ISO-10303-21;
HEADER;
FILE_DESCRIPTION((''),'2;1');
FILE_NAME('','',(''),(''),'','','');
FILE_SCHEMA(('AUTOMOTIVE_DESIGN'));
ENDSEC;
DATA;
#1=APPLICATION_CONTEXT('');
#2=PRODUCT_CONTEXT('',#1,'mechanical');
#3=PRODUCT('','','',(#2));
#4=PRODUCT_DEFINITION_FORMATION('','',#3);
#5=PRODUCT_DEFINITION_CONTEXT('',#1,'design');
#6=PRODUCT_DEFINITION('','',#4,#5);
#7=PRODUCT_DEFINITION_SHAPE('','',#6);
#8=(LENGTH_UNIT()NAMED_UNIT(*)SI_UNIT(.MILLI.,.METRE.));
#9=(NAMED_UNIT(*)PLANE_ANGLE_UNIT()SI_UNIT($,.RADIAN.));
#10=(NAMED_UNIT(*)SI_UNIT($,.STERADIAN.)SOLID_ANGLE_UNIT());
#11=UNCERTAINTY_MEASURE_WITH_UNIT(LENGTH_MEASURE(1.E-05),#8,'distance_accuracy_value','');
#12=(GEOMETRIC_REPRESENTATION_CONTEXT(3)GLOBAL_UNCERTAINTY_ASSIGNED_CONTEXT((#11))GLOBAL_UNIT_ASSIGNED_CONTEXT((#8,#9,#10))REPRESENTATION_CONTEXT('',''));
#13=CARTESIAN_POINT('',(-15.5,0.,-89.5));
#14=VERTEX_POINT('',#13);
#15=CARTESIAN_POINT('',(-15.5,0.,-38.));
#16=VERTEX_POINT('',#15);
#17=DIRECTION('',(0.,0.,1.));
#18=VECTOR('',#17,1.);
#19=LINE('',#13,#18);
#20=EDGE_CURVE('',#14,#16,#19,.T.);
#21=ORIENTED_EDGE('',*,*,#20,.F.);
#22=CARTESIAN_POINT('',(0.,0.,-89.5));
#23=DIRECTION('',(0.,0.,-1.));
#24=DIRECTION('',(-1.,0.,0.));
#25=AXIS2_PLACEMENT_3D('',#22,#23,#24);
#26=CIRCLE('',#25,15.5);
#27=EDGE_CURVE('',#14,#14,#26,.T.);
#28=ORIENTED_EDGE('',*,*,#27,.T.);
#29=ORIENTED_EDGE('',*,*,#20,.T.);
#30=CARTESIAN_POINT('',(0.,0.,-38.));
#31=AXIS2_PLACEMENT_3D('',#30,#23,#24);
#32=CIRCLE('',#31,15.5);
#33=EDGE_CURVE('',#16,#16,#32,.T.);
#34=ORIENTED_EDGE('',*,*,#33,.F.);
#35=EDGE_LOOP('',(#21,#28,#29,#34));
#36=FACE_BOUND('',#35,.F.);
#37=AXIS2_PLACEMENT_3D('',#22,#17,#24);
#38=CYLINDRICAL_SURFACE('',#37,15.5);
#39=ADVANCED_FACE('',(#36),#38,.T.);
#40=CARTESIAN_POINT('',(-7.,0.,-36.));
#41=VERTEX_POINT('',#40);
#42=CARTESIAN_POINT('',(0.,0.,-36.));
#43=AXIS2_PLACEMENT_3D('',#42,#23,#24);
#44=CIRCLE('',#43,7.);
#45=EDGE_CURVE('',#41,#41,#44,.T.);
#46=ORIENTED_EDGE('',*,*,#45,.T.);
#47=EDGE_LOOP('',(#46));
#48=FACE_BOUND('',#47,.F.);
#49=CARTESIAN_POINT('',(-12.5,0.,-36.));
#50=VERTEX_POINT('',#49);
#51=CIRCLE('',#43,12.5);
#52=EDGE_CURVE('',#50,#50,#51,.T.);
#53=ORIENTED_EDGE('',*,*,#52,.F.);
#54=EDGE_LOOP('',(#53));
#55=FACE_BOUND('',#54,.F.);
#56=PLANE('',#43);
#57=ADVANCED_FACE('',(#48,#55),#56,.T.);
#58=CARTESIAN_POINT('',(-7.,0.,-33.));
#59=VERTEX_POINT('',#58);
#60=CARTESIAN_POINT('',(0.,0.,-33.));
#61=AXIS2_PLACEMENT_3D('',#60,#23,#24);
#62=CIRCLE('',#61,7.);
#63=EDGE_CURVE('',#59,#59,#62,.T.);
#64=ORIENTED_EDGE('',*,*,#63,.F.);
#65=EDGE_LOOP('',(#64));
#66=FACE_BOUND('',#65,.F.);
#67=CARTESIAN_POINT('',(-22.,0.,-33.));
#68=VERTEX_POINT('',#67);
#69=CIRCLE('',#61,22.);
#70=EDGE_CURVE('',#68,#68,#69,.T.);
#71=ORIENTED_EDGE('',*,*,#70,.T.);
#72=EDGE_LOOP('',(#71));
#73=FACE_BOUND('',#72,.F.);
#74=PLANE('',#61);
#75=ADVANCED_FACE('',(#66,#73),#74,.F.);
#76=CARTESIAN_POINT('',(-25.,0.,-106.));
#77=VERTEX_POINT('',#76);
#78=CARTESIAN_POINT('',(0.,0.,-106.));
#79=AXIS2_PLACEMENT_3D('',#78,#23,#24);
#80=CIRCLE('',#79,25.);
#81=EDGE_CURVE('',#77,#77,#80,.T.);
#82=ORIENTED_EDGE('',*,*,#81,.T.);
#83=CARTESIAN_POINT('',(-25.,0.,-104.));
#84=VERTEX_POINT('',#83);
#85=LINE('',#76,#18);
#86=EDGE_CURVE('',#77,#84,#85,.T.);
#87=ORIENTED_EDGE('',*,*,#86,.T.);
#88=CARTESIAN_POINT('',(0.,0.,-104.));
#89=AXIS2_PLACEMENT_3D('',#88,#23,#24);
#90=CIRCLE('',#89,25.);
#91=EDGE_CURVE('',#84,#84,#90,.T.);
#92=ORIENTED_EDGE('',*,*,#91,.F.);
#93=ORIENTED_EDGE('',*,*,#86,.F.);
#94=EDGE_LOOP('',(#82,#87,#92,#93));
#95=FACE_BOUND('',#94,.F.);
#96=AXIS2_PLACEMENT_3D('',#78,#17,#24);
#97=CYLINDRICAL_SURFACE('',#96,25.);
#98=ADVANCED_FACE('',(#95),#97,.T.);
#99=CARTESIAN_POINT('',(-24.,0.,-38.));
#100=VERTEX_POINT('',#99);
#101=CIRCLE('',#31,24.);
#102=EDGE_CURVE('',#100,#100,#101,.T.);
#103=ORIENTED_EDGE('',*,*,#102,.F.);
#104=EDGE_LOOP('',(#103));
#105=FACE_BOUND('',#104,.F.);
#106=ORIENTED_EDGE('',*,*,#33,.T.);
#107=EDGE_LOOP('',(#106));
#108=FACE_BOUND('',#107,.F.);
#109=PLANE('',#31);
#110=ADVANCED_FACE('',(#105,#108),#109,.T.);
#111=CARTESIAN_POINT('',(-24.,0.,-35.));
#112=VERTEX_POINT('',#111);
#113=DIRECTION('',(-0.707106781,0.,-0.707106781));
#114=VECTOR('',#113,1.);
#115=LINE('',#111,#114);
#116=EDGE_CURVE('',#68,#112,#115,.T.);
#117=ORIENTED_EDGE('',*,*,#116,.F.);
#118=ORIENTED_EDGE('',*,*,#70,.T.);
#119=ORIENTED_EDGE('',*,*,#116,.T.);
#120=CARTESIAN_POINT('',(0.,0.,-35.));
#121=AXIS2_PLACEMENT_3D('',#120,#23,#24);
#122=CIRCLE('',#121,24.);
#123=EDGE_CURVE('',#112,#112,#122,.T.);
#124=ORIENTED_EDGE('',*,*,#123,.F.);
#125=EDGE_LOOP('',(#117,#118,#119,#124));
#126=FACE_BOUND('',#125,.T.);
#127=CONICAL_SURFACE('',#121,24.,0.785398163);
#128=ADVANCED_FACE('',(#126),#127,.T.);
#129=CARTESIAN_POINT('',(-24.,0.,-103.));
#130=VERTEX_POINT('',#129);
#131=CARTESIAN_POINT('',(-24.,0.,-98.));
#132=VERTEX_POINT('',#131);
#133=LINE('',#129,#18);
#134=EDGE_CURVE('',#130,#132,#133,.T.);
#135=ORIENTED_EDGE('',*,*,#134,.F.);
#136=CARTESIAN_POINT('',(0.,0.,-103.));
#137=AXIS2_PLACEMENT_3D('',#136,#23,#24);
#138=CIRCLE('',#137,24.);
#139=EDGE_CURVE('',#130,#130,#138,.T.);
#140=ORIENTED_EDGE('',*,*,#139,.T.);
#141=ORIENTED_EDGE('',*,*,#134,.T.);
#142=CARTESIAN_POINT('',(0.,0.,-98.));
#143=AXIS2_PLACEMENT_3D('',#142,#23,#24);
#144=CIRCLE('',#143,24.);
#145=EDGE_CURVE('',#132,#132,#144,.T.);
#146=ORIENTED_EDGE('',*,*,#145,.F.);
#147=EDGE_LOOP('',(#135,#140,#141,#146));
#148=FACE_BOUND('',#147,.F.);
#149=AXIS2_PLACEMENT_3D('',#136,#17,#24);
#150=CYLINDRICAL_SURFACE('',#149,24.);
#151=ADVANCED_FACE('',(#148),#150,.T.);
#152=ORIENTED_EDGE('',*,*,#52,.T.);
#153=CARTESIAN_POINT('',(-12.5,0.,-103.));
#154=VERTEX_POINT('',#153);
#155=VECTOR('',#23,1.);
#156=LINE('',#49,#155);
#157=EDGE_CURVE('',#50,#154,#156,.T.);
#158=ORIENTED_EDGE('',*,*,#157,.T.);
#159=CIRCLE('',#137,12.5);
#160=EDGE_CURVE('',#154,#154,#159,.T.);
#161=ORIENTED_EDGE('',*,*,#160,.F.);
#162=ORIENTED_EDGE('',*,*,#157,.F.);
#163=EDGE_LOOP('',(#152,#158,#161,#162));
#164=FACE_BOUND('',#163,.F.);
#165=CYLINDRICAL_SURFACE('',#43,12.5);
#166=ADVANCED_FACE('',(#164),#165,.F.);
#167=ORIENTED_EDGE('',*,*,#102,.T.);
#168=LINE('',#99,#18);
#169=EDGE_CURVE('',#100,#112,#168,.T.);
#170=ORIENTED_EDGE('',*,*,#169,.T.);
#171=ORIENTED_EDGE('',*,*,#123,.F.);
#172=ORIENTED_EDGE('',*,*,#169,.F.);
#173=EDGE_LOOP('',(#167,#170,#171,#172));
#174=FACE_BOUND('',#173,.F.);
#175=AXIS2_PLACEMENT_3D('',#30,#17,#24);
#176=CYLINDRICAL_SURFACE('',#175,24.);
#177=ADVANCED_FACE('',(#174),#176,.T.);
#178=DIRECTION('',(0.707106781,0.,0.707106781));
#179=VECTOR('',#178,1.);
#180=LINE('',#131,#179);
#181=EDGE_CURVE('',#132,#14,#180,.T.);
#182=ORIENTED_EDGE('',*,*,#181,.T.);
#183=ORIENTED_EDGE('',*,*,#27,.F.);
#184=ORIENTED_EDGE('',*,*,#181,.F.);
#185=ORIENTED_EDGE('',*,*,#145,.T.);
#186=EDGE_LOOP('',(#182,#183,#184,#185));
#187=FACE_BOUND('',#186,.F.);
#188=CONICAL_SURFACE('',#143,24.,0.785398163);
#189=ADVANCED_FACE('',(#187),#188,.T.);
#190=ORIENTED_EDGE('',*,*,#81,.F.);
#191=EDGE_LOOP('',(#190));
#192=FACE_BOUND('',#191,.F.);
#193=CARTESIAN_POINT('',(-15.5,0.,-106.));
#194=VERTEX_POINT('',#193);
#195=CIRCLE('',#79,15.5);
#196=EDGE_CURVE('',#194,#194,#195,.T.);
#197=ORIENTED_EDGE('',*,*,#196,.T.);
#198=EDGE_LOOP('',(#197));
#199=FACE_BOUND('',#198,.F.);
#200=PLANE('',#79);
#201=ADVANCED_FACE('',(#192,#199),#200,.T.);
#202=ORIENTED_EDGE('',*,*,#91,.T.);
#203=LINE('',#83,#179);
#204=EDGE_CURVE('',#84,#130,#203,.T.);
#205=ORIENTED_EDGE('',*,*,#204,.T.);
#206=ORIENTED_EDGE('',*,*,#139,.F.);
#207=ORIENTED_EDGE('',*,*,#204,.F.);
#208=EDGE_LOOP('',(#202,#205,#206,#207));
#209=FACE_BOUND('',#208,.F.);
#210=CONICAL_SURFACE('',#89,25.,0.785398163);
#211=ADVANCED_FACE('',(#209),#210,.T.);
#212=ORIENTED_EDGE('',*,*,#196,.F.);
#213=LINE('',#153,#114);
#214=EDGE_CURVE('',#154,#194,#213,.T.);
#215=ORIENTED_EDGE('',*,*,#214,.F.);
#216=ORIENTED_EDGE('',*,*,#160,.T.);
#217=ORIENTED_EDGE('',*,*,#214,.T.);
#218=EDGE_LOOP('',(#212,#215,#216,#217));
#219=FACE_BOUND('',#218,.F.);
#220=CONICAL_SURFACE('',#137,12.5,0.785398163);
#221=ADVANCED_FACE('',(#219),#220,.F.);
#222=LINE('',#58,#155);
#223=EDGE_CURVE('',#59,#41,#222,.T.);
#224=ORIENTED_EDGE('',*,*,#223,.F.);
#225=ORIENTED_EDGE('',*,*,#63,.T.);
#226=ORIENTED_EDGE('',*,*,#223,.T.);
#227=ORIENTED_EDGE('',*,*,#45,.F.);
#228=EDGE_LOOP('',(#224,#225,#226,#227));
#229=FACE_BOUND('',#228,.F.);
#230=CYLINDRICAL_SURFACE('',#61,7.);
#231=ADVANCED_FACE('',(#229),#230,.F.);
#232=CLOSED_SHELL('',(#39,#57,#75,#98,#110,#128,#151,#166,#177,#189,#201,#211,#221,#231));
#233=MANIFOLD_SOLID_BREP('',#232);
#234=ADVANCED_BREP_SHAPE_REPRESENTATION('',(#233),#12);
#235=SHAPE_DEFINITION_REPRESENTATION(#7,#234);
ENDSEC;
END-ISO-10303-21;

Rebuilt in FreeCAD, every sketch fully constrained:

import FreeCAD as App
import Part
import Sketcher

V = App.Vector
Q = App.Units.Quantity


def edges_at(feature, points):
    """Names of the edges that pass closest to the given points."""
    edges = feature.Shape.Edges
    near = lambda p: min(range(len(edges)), key=lambda i: edges[i].distToShape(Part.Vertex(*p))[0])
    return sorted({f"Edge{near(p) + 1}" for p in points})

doc = App.newDocument("Part")
body = doc.addObject("PartDesign::Body", "Body")

# Sketch on XZ plane
sketch1 = doc.addObject("Sketcher::SketchObject", "Sketch")
body.addObject(sketch1)
sketch1.AttachmentSupport = (doc.XZ_Plane, [""])
sketch1.MapMode = "FlatFace"
sketch1.addGeometry(Part.LineSegment(V(7, 0, 0), V(24, 0, 0)), False)
sketch1.addGeometry(Part.LineSegment(V(24, 0, 0), V(24, 5, 0)), False)
sketch1.addGeometry(Part.LineSegment(V(24, 5, 0), V(15.5, 5, 0)), False)
sketch1.addGeometry(Part.LineSegment(V(15.5, 5, 0), V(15.5, 56.5, 0)), False)
sketch1.addGeometry(Part.LineSegment(V(15.5, 56.5, 0), V(24, 65, 0)), False)
sketch1.addGeometry(Part.LineSegment(V(24, 65, 0), V(24, 70, 0)), False)
sketch1.addGeometry(Part.LineSegment(V(24, 70, 0), V(25, 71, 0)), False)
sketch1.addGeometry(Part.LineSegment(V(25, 71, 0), V(25, 73, 0)), False)
sketch1.addGeometry(Part.LineSegment(V(25, 73, 0), V(12.5, 73, 0)), False)
sketch1.addGeometry(Part.LineSegment(V(12.5, 73, 0), V(12.5, 3, 0)), False)
sketch1.addGeometry(Part.LineSegment(V(12.5, 3, 0), V(7, 3, 0)), False)
sketch1.addGeometry(Part.LineSegment(V(7, 3, 0), V(7, 0, 0)), False)
sketch1.addConstraint(Sketcher.Constraint("Coincident", 0, 2, 1, 1))
sketch1.addConstraint(Sketcher.Constraint("Coincident", 1, 2, 2, 1))
sketch1.addConstraint(Sketcher.Constraint("Coincident", 2, 2, 3, 1))
sketch1.addConstraint(Sketcher.Constraint("Coincident", 3, 2, 4, 1))
sketch1.addConstraint(Sketcher.Constraint("Coincident", 4, 2, 5, 1))
sketch1.addConstraint(Sketcher.Constraint("Coincident", 5, 2, 6, 1))
sketch1.addConstraint(Sketcher.Constraint("Coincident", 6, 2, 7, 1))
sketch1.addConstraint(Sketcher.Constraint("Coincident", 7, 2, 8, 1))
sketch1.addConstraint(Sketcher.Constraint("Coincident", 8, 2, 9, 1))
sketch1.addConstraint(Sketcher.Constraint("Coincident", 9, 2, 10, 1))
sketch1.addConstraint(Sketcher.Constraint("Coincident", 10, 2, 11, 1))
sketch1.addConstraint(Sketcher.Constraint("Coincident", 11, 2, 0, 1))
sketch1.addConstraint(Sketcher.Constraint("Horizontal", 0))
sketch1.addConstraint(Sketcher.Constraint("Vertical", 1))
sketch1.addConstraint(Sketcher.Constraint("Horizontal", 2))
sketch1.addConstraint(Sketcher.Constraint("Vertical", 3))
sketch1.addConstraint(Sketcher.Constraint("Vertical", 5))
sketch1.addConstraint(Sketcher.Constraint("Vertical", 7))
sketch1.addConstraint(Sketcher.Constraint("Horizontal", 8))
sketch1.addConstraint(Sketcher.Constraint("Vertical", 9))
sketch1.addConstraint(Sketcher.Constraint("Horizontal", 10))
sketch1.addConstraint(Sketcher.Constraint("Vertical", 11))
sketch1.addConstraint(Sketcher.Constraint("PointOnObject", 0, 2, -1))
sketch1.addConstraint(Sketcher.Constraint("Parallel", 4, 6))
sketch1.addConstraint(Sketcher.Constraint("Vertical", 1, 2, 4, 2))
sketch1.addConstraint(Sketcher.Constraint("Equal", 1, 5))
sketch1.addConstraint(Sketcher.Constraint("DistanceX", 0, 1, 0, 2, 17.0))
sketch1.addConstraint(Sketcher.Constraint("DistanceY", 1, 1, 1, 2, 5.0))
sketch1.addConstraint(Sketcher.Constraint("DistanceY", 7, 1, 7, 2, 2.0))
sketch1.addConstraint(Sketcher.Constraint("DistanceY", 9, 2, 9, 1, 70.0))
sketch1.addConstraint(Sketcher.Constraint("DistanceY", 11, 2, 11, 1, 3.0))
sketch1.addConstraint(Sketcher.Constraint("Angle", 4, Q("45 deg")))
sketch1.addConstraint(Sketcher.Constraint("DistanceX", 2, 2, 2, 1, 8.5))
sketch1.addConstraint(Sketcher.Constraint("DistanceX", 8, 2, 8, 1, 12.5))
sketch1.addConstraint(Sketcher.Constraint("DistanceX", 10, 2, 10, 1, 5.5))
sketch1.addConstraint(Sketcher.Constraint("DistanceX", -1, 1, 0, 2, 24.0))
revolution = doc.addObject("PartDesign::Revolution", "Revolution")
body.addObject(revolution)
revolution.Profile = sketch1
revolution.ReferenceAxis = (sketch1, ["V_Axis"])
revolution.Angle = 360
doc.recompute()

chamfer = doc.addObject("PartDesign::Chamfer", "Chamfer")
body.addObject(chamfer)
chamfer.Base = (revolution, edges_at(revolution, [(-12.5, 0, 73)]))
chamfer.Size = 3
doc.recompute()

chamfer2 = doc.addObject("PartDesign::Chamfer", "Chamfer001")
body.addObject(chamfer2)
chamfer2.Base = (chamfer, edges_at(chamfer, [(-24, 0, 0)]))
chamfer2.Size = 2
body2 = doc.addObject("PartDesign::Body", "Body001")
doc.recompute()

body.Placement = App.Placement(V(0, 0, -33), App.Rotation(V(0, 1, 0), 180))
boolean = doc.addObject("PartDesign::Boolean", "Boolean")
body2.addObject(boolean)
boolean.Type = "Fuse"
boolean.addObjects([body])

doc.recompute()
